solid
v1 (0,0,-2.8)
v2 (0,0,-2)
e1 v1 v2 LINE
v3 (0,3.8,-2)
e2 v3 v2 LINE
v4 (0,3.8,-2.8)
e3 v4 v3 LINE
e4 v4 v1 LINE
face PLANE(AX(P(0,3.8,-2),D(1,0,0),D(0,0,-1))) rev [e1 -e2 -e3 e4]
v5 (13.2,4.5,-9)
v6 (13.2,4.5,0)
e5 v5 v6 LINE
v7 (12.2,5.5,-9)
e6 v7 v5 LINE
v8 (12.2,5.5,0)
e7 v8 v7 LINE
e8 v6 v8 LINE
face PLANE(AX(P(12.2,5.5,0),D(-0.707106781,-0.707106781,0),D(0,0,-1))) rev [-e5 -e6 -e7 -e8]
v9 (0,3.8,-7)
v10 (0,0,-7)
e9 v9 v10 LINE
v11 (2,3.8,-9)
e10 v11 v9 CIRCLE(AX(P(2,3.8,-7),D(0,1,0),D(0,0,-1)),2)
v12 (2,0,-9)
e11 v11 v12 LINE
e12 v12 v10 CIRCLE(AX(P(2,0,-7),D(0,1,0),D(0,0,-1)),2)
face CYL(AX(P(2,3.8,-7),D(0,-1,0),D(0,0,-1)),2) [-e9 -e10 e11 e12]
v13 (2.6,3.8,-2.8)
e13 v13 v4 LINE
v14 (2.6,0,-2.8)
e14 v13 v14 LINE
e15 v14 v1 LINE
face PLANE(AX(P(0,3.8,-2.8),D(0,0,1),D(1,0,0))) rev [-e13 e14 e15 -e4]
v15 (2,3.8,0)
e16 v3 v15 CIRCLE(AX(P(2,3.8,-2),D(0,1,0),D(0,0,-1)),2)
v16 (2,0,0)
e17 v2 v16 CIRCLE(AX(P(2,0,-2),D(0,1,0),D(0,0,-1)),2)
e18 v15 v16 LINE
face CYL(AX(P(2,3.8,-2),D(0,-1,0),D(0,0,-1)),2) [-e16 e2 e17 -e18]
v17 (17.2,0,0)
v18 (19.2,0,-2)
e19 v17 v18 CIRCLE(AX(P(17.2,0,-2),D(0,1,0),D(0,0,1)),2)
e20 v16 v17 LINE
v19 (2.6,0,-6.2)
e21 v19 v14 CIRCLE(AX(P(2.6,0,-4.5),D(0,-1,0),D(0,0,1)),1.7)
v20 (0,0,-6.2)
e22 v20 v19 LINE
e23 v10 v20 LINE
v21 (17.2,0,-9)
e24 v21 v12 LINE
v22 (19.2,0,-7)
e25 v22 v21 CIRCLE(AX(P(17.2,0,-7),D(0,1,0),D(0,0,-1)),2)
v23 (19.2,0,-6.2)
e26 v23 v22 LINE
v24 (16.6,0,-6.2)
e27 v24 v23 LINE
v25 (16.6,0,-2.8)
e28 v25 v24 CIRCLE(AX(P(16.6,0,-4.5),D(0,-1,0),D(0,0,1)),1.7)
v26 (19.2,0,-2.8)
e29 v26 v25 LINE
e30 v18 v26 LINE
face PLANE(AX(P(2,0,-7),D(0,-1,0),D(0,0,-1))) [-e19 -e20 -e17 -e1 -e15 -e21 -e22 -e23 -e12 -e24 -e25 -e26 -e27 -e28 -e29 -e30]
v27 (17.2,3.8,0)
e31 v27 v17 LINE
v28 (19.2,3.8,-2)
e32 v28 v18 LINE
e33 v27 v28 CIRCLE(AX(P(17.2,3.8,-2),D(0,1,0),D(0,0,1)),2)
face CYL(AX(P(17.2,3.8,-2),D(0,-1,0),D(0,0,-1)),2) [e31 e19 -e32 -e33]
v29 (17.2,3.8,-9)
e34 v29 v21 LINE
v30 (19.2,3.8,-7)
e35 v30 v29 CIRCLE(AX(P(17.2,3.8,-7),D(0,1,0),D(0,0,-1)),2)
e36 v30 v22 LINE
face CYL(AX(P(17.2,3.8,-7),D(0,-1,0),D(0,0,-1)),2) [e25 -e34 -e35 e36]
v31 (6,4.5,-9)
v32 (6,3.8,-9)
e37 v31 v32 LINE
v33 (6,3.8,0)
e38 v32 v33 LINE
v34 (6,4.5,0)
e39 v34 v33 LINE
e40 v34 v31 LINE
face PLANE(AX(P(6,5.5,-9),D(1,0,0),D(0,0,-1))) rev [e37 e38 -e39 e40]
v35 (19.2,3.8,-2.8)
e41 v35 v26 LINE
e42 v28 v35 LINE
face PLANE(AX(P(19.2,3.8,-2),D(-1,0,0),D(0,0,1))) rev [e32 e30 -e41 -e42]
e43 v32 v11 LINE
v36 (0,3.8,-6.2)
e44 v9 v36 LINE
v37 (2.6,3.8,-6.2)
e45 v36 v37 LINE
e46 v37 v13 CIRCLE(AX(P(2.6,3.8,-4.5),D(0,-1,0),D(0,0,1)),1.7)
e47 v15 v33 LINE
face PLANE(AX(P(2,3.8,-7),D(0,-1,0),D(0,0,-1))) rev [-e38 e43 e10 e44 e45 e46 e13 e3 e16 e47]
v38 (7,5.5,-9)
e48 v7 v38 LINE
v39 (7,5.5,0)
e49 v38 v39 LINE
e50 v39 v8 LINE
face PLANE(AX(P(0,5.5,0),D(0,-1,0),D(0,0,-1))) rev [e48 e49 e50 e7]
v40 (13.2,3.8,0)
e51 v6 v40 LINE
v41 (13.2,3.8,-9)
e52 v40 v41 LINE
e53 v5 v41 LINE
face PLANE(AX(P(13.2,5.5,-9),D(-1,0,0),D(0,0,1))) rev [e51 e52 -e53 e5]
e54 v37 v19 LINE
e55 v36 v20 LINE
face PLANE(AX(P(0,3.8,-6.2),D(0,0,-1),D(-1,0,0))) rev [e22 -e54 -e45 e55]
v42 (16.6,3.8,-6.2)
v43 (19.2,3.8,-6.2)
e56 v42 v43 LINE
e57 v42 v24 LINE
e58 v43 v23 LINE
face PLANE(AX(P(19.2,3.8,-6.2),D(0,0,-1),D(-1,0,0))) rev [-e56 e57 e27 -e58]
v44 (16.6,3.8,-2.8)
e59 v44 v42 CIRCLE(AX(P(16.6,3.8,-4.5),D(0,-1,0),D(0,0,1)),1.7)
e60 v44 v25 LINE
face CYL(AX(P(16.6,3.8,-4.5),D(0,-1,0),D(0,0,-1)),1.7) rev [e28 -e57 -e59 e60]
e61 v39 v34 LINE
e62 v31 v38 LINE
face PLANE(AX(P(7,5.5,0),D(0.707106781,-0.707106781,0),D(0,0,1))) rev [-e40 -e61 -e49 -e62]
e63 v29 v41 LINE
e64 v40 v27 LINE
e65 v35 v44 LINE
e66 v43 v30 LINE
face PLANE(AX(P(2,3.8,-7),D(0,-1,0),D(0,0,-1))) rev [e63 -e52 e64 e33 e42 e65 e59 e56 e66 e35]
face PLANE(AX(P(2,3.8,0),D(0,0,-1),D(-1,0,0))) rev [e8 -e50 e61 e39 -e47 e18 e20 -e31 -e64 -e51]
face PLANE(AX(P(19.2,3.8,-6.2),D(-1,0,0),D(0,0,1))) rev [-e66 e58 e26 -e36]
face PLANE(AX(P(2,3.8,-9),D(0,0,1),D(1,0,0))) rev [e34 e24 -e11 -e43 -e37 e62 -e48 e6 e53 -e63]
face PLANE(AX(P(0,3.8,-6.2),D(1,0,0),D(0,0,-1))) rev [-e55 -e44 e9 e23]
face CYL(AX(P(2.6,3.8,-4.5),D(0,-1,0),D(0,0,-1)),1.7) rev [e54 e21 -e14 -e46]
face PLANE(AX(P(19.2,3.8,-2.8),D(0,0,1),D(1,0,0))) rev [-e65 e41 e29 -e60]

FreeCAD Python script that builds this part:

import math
import FreeCAD as App
import Part
import Sketcher


def edges_at(feature, points):
    """Names of the edges that pass closest to the given points."""
    edges = feature.Shape.Edges
    near = lambda p: min(range(len(edges)), key=lambda i: edges[i].distToShape(Part.Vertex(*p))[0])
    return sorted({f"Edge{near(p) + 1}" for p in points})


def add_polygon(sketch, points):
    """Adds a closed chain of lines whose ends are joined by coincident constraints."""
    first, n = sketch.GeometryCount, len(points)
    for a, b in zip(points, points[1:] + points[:1]):
        sketch.addGeometry(Part.LineSegment(App.Vector(*a, 0), App.Vector(*b, 0)), False)
    for i in range(n):
        sketch.addConstraint(Sketcher.Constraint("Coincident", first + i, 2, first + (i + 1) % n, 1))

doc = App.newDocument("Part")
params = doc.addObject("Spreadsheet::Sheet", "Params")
for row, (alias, value) in enumerate([
    ("sketch1_radius", "2 mm"),
    ("sketch1_radius2", "1.7 mm"),
    ("sketch1_width", "2.6 mm"),
    ("sketch1_width2", "15.2 mm"),
    ("sketch1_height", "0.8 mm"),
    ("pad1_length", "3.8 mm"),
    ("sketch2_height", "9 mm"),
    ("sketch2_width", "7.2 mm"),
    ("pad2_length", "1.7 mm"),
    ("chamfer_size", "1 mm"),
], start=1):
    params.set(f"A{row}", alias)
    params.set(f"B{row}", "=" + value)
    params.setAlias(f"B{row}", alias)

body = doc.addObject("PartDesign::Body", "Body")

sketch1 = body.newObject("Sketcher::SketchObject", "Sketch")
sketch1.AttachmentSupport = (doc.getObject("XZ_Plane"), [""])
sketch1.MapMode = "FlatFace"
sketch1.addGeometry(Part.LineSegment(App.Vector(0, -6.2, 0), App.Vector(2.6, -6.2, 0)), False)
sketch1.addGeometry(Part.ArcOfCircle(Part.Circle(App.Vector(2.6, -4.5, 0), App.Vector(0, 0, 1), 1.7), math.radians(-90), math.radians(90)), False)
sketch1.addGeometry(Part.LineSegment(App.Vector(2.6, -2.8, 0), App.Vector(0, -2.8, 0)), False)
sketch1.addGeometry(Part.LineSegment(App.Vector(0, -2.8, 0), App.Vector(0, -2, 0)), False)
sketch1.addGeometry(Part.ArcOfCircle(Part.Circle(App.Vector(2, -2, 0), App.Vector(0, 0, 1), 2), math.radians(90), math.radians(180)), False)
sketch1.addGeometry(Part.LineSegment(App.Vector(2, 0, 0), App.Vector(17.2, 0, 0)), False)
sketch1.addGeometry(Part.ArcOfCircle(Part.Circle(App.Vector(17.2, -2, 0), App.Vector(0, 0, 1), 2), math.radians(0), math.radians(90)), False)
sketch1.addGeometry(Part.LineSegment(App.Vector(19.2, -2, 0), App.Vector(19.2, -2.8, 0)), False)
sketch1.addGeometry(Part.LineSegment(App.Vector(19.2, -2.8, 0), App.Vector(16.6, -2.8, 0)), False)
sketch1.addGeometry(Part.ArcOfCircle(Part.Circle(App.Vector(16.6, -4.5, 0), App.Vector(0, 0, 1), 1.7), math.radians(90), math.radians(270)), False)
sketch1.addGeometry(Part.LineSegment(App.Vector(16.6, -6.2, 0), App.Vector(19.2, -6.2, 0)), False)
sketch1.addGeometry(Part.LineSegment(App.Vector(19.2, -6.2, 0), App.Vector(19.2, -7, 0)), False)
sketch1.addGeometry(Part.ArcOfCircle(Part.Circle(App.Vector(17.2, -7, 0), App.Vector(0, 0, 1), 2), math.radians(-90), math.radians(0)), False)
sketch1.addGeometry(Part.LineSegment(App.Vector(17.2, -9, 0), App.Vector(2, -9, 0)), False)
sketch1.addGeometry(Part.ArcOfCircle(Part.Circle(App.Vector(2, -7, 0), App.Vector(0, 0, 1), 2), math.radians(-180), math.radians(-90)), False)
sketch1.addGeometry(Part.LineSegment(App.Vector(0, -7, 0), App.Vector(0, -6.2, 0)), False)
sketch1.addConstraint(Sketcher.Constraint("Tangent", 0, 2, 1, 1))
sketch1.addConstraint(Sketcher.Constraint("Tangent", 1, 2, 2, 1))
sketch1.addConstraint(Sketcher.Constraint("Coincident", 2, 2, 3, 1))
sketch1.addConstraint(Sketcher.Constraint("Tangent", 3, 2, 4, 2))
sketch1.addConstraint(Sketcher.Constraint("Tangent", 4, 1, 5, 1))
sketch1.addConstraint(Sketcher.Constraint("Tangent", 5, 2, 6, 2))
sketch1.addConstraint(Sketcher.Constraint("Tangent", 6, 1, 7, 1))
sketch1.addConstraint(Sketcher.Constraint("Coincident", 7, 2, 8, 1))
sketch1.addConstraint(Sketcher.Constraint("Tangent", 8, 2, 9, 1))
sketch1.addConstraint(Sketcher.Constraint("Tangent", 9, 2, 10, 1))
sketch1.addConstraint(Sketcher.Constraint("Coincident", 10, 2, 11, 1))
sketch1.addConstraint(Sketcher.Constraint("Tangent", 11, 2, 12, 2))
sketch1.addConstraint(Sketcher.Constraint("Tangent", 12, 1, 13, 1))
sketch1.addConstraint(Sketcher.Constraint("Tangent", 13, 2, 14, 2))
sketch1.addConstraint(Sketcher.Constraint("Tangent", 14, 1, 15, 1))
sketch1.addConstraint(Sketcher.Constraint("Coincident", 15, 2, 0, 1))
sketch1.addConstraint(Sketcher.Constraint("Horizontal", 0))
sketch1.addConstraint(Sketcher.Constraint("Horizontal", 2))
sketch1.addConstraint(Sketcher.Constraint("Vertical", 3))
sketch1.addConstraint(Sketcher.Constraint("Horizontal", 5))
sketch1.addConstraint(Sketcher.Constraint("Vertical", 7))
sketch1.addConstraint(Sketcher.Constraint("Horizontal", 8))
sketch1.addConstraint(Sketcher.Constraint("Horizontal", 10))
sketch1.addConstraint(Sketcher.Constraint("Vertical", 11))
sketch1.addConstraint(Sketcher.Constraint("Horizontal", 13))
sketch1.addConstraint(Sketcher.Constraint("Vertical", 15))
sketch1.addConstraint(Sketcher.Constraint("Equal", 4, 6))
sketch1.addConstraint(Sketcher.Constraint("Equal", 1, 9))
sketch1.addConstraint(Sketcher.Constraint("Equal", 6, 12))
sketch1.addConstraint(Sketcher.Constraint("Equal", 12, 14))
sketch1.addConstraint(Sketcher.Constraint("PointOnObject", 2, 2, -2))
sketch1.addConstraint(Sketcher.Constraint("PointOnObject", 4, 1, -1))
sketch1.addConstraint(Sketcher.Constraint("PointOnObject", 14, 1, -2))
sketch1.addConstraint(Sketcher.Constraint("Horizontal", 1, 3, 9, 3))
sketch1.addConstraint(Sketcher.Constraint("Vertical", 6, 3, 12, 3))
sketch1.addConstraint(Sketcher.Constraint("Equal", 2, 8))
sketch1.addConstraint(Sketcher.Constraint("Equal", 7, 11))
sketch1.addConstraint(Sketcher.Constraint("Radius", 4, 2.0))
sketch1.addConstraint(Sketcher.Constraint("Radius", 1, 1.7))
sketch1.addConstraint(Sketcher.Constraint("DistanceX", 0, 1, 0, 2, 2.6))
sketch1.addConstraint(Sketcher.Constraint("DistanceX", 5, 1, 5, 2, 15.2))
sketch1.addConstraint(Sketcher.Constraint("DistanceY", 3, 1, 3, 2, 0.8))
sketch1.setExpression("Constraints[37]", "Params.sketch1_radius")
sketch1.setExpression("Constraints[38]", "Params.sketch1_radius2")
sketch1.setExpression("Constraints[39]", "Params.sketch1_width")
sketch1.setExpression("Constraints[40]", "Params.sketch1_width2")
sketch1.setExpression("Constraints[41]", "Params.sketch1_height")
pad1 = body.newObject("PartDesign::Pad", "Pad")
pad1.Profile = sketch1
pad1.setExpression("Length", "Params.pad1_length")
pad1.Reversed = True

sketch2 = body.newObject("Sketcher::SketchObject", "Sketch001")
sketch2.AttachmentSupport = (doc.getObject("XZ_Plane"), [""])
sketch2.MapMode = "FlatFace"
sketch2.AttachmentOffset = App.Placement(App.Vector(0, 0, -3.8), App.Rotation())
add_polygon(sketch2, [(6, -9), (6, 0), (13, 0), (13, -9)])
sketch2.addConstraint(Sketcher.Constraint("Vertical", 0))
sketch2.addConstraint(Sketcher.Constraint("Horizontal", 1))
sketch2.addConstraint(Sketcher.Constraint("Vertical", 2))
sketch2.addConstraint(Sketcher.Constraint("Horizontal", 3))
sketch2.addConstraint(Sketcher.Constraint("PointOnObject", 0, 2, -1))
sketch2.addConstraint(Sketcher.Constraint("DistanceY", 0, 1, 0, 2, 9.0))
sketch2.addConstraint(Sketcher.Constraint("DistanceX", 1, 1, 1, 2, 7.2))
sketch2.addConstraint(Sketcher.Constraint("DistanceX", -1, 1, 0, 2, 6.0))
sketch2.setExpression("Constraints[9]", "Params.sketch2_height")
sketch2.setExpression("Constraints[10]", "Params.sketch2_width")
pad2 = body.newObject("PartDesign::Pad", "Pad001")
pad2.Profile = sketch2
pad2.setExpression("Length", "Params.pad2_length")
pad2.Reversed = True
doc.recompute()

chamfer = body.newObject("PartDesign::Chamfer", "Chamfer")
chamfer.Base = (pad2, edges_at(pad2, [(13.2, 5.5, -4.5), (6, 5.5, -4.5)]))
chamfer.setExpression("Size", "Params.chamfer_size")

doc.recompute()
